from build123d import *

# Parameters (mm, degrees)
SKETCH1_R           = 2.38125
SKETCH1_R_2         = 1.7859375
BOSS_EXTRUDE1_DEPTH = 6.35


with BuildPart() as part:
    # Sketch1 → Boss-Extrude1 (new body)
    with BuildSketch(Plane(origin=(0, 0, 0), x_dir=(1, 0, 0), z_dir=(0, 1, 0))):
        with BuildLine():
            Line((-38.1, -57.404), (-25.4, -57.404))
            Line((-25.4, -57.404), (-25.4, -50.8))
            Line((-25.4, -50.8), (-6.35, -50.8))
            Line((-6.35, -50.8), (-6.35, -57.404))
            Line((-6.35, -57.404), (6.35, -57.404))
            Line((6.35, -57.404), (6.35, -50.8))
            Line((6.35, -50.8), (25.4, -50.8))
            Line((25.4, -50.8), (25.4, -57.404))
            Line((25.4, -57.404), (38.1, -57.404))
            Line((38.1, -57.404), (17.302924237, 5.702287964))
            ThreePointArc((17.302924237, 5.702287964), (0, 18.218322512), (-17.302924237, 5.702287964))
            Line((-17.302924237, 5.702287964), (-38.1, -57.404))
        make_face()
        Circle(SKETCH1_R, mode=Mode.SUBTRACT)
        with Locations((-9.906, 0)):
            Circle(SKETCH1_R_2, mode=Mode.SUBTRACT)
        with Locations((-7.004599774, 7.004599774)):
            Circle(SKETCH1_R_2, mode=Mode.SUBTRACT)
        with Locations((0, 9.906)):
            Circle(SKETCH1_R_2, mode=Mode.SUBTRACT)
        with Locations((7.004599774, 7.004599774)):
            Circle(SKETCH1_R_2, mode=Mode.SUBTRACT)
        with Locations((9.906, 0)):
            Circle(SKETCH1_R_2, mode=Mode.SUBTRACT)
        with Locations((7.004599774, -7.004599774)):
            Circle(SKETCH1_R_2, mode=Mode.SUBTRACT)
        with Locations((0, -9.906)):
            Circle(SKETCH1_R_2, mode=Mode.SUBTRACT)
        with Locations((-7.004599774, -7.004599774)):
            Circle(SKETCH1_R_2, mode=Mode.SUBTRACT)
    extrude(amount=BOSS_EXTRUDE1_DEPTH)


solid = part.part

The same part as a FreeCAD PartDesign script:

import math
import FreeCAD as App
import Part
import Sketcher

V = App.Vector
Q = App.Units.Quantity

doc = App.newDocument("Part")
body = doc.addObject("PartDesign::Body", "Body")

# Sketch on XZ plane
sketch1 = body.newObject("Sketcher::SketchObject", "Sketch")
sketch1.AttachmentSupport = (doc.getObject("XZ_Plane"), [""])
sketch1.MapMode = "FlatFace"
sketch1.addGeometry([
    Part.LineSegment(V(-38.1, 57.4, 0), V(-25.4, 57.4, 0)),  # 0
    Part.LineSegment(V(-25.4, 57.4, 0), V(-25.4, 50.8, 0)),  # 1
    Part.LineSegment(V(-25.4, 50.8, 0), V(-6.3, 50.8, 0)),  # 2
    Part.LineSegment(V(-6.3, 50.8, 0), V(-6.3, 57.4, 0)),  # 3
    Part.LineSegment(V(-6.3, 57.4, 0), V(6.3, 57.4, 0)),  # 4
    Part.LineSegment(V(6.3, 57.4, 0), V(6.3, 50.8, 0)),  # 5
    Part.LineSegment(V(6.3, 50.8, 0), V(25.4, 50.8, 0)),  # 6
    Part.LineSegment(V(25.4, 50.8, 0), V(25.4, 57.4, 0)),  # 7
    Part.LineSegment(V(25.4, 57.4, 0), V(38.1, 57.4, 0)),  # 8
    Part.LineSegment(V(38.1, 57.4, 0), V(17.3, -5.7, 0)),  # 9
    Part.ArcOfCircle(Part.Circle(V(0, 0, 0), V(0, 0, 1), 18.2), math.radians(-162), math.radians(-18)),  # 10
    Part.LineSegment(V(-17.3, -5.7, 0), V(-38.1, 57.4, 0)),  # 11
    Part.Circle(V(-7, 7, 0), V(0, 0, 1), 1.8),  # 12
    Part.Circle(V(-9.9, 0, 0), V(0, 0, 1), 1.8),  # 13
    Part.Circle(V(0, 9.9, 0), V(0, 0, 1), 1.8),  # 14
    Part.Circle(V(7, 7, 0), V(0, 0, 1), 1.8),  # 15
    Part.Circle(V(0, 0, 0), V(0, 0, 1), 2.4),  # 16
    Part.Circle(V(9.9, 0, 0), V(0, 0, 1), 1.8),  # 17
    Part.Circle(V(-7, -7, 0), V(0, 0, 1), 1.8),  # 18
    Part.Circle(V(0, -9.9, 0), V(0, 0, 1), 1.8),  # 19
    Part.Circle(V(7, -7, 0), V(0, 0, 1), 1.8),  # 20
], False)
sketch1.addConstraint([
    Sketcher.Constraint("Coincident", 0, 2, 1, 1),
    Sketcher.Constraint("Coincident", 1, 2, 2, 1),
    Sketcher.Constraint("Coincident", 2, 2, 3, 1),
    Sketcher.Constraint("Coincident", 3, 2, 4, 1),
    Sketcher.Constraint("Coincident", 4, 2, 5, 1),
    Sketcher.Constraint("Coincident", 5, 2, 6, 1),
    Sketcher.Constraint("Coincident", 6, 2, 7, 1),
    Sketcher.Constraint("Coincident", 7, 2, 8, 1),
    Sketcher.Constraint("Coincident", 8, 2, 9, 1),
    Sketcher.Constraint("Tangent", 9, 2, 10, 2),
    Sketcher.Constraint("Tangent", 10, 1, 11, 1),
    Sketcher.Constraint("Coincident", 11, 2, 0, 1),
    Sketcher.Constraint("Horizontal", 0),
    Sketcher.Constraint("Vertical", 1),
    Sketcher.Constraint("Horizontal", 2),
    Sketcher.Constraint("Vertical", 3),
    Sketcher.Constraint("Horizontal", 4),
    Sketcher.Constraint("Vertical", 5),
    Sketcher.Constraint("Horizontal", 6),
    Sketcher.Constraint("Vertical", 7),
    Sketcher.Constraint("Horizontal", 8),
    Sketcher.Constraint("Coincident", 10, 3, -1, 1),
    Sketcher.Constraint("Coincident", 16, 3, -1, 1),
    Sketcher.Constraint("Equal", 12, 13),
    Sketcher.Constraint("Equal", 13, 14),
    Sketcher.Constraint("Equal", 14, 15),
    Sketcher.Constraint("Equal", 15, 17),
    Sketcher.Constraint("Equal", 17, 18),
    Sketcher.Constraint("Equal", 18, 19),
    Sketcher.Constraint("Equal", 19, 20),
    Sketcher.Constraint("Symmetric", 13, 3, 17, 3, -1, 1),
    Sketcher.Constraint("Symmetric", 15, 3, 18, 3, -1, 1),
    Sketcher.Constraint("Symmetric", 14, 3, 19, 3, -1, 1),
    Sketcher.Constraint("Symmetric", 12, 3, 20, 3, -1, 1),
    Sketcher.Constraint("Symmetric", 12, 3, 15, 3, -2),
    Sketcher.Constraint("Symmetric", 2, 2, 5, 2, -2),
    Sketcher.Constraint("Symmetric", 0, 2, 7, 2, -2),
    Sketcher.Constraint("PointOnObject", 13, 3, -1),
    Sketcher.Constraint("PointOnObject", 14, 3, -2),
    Sketcher.Constraint("Horizontal", 0, 2, 3, 2),
    Sketcher.Constraint("Horizontal", 9, 2, 10, 1),
    Sketcher.Constraint("Equal", 0, 4),
    Sketcher.Constraint("Diameter", 12, Q("0.140625 in")),
    Sketcher.Constraint("Diameter", 16, Q("0.1875 in")),
    Sketcher.Constraint("DistanceX", 0, 1, 0, 2, Q("0.5 in")),
    Sketcher.Constraint("DistanceX", 0, 2, -1, 1, Q("1 in")),
    Sketcher.Constraint("DistanceY", -1, 1, 1, 2, Q("2 in")),
    Sketcher.Constraint("DistanceY", 1, 2, 1, 1, Q("0.26 in")),
    Sketcher.Constraint("DistanceX", 13, 3, -1, 1, Q("0.39 in")),
    Sketcher.Constraint("DistanceY", -1, 1, 14, 3, Q("0.39 in")),
    Sketcher.Constraint("Radius", 10, Q("18.218323 mm")),
    Sketcher.Constraint("DistanceX", 12, 3, -1, 1, Q("7.0046 mm")),
    Sketcher.Constraint("DistanceY", -1, 1, 12, 3, Q("7.0046 mm")),
])
pad1 = body.newObject("PartDesign::Pad", "Pad")
pad1.Profile = sketch1
pad1.Length = Q("0.25 in")
pad1.Reversed = True

doc.recompute()
